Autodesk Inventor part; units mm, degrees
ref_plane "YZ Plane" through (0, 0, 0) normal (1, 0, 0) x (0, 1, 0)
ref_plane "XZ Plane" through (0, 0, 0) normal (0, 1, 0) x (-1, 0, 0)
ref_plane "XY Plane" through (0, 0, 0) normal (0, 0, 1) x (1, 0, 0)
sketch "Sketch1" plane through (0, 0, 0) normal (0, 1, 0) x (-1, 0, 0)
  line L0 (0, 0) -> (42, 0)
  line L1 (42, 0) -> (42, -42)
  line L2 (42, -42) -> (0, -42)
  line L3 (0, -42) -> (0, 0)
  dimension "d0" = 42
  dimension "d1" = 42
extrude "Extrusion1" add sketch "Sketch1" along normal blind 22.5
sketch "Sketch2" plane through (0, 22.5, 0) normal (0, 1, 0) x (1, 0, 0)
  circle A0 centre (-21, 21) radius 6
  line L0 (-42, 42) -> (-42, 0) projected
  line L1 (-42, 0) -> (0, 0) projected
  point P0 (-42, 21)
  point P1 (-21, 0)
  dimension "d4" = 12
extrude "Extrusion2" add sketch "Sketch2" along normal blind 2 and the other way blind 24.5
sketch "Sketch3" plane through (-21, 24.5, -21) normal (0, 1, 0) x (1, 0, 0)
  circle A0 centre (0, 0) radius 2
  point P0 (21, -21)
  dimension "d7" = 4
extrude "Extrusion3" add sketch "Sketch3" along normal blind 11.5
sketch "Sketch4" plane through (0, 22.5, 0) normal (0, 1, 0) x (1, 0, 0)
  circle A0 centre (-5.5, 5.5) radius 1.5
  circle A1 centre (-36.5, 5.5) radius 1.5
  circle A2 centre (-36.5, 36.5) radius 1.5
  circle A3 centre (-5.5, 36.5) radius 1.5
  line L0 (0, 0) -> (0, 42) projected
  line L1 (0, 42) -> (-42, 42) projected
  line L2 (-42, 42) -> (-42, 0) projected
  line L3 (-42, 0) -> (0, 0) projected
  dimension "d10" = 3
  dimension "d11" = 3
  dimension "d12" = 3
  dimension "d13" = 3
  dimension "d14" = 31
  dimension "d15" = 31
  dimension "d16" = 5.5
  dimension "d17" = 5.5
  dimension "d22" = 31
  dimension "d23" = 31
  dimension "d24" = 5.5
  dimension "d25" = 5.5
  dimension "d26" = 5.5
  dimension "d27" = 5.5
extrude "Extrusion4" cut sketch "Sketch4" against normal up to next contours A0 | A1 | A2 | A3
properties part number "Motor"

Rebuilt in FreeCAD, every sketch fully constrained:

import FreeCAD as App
import Part
import Sketcher

V = App.Vector

doc = App.newDocument("Part")
body = doc.addObject("PartDesign::Body", "Body")

sketch1 = doc.addObject("Sketcher::SketchObject", "Sketch")
body.addObject(sketch1)
sketch1.AttachmentSupport = (doc.XZ_Plane, [""])
sketch1.MapMode = "FlatFace"
sketch1.addGeometry([
    Part.LineSegment(V(-42, 0, 0), V(0, 0, 0)),
    Part.LineSegment(V(0, 0, 0), V(0, -42, 0)),
    Part.LineSegment(V(0, -42, 0), V(-42, -42, 0)),
    Part.LineSegment(V(-42, -42, 0), V(-42, 0, 0)),
], False)
sketch1.addConstraint([
    Sketcher.Constraint("Coincident", 0, 2, 1, 1),
    Sketcher.Constraint("Coincident", 1, 2, 2, 1),
    Sketcher.Constraint("Coincident", 2, 2, 3, 1),
    Sketcher.Constraint("Coincident", 3, 2, 0, 1),
    Sketcher.Constraint("Horizontal", 0),
    Sketcher.Constraint("Vertical", 1),
    Sketcher.Constraint("Horizontal", 2),
    Sketcher.Constraint("Vertical", 3),
    Sketcher.Constraint("Coincident", 0, 2, -1, 1),
    Sketcher.Constraint("Equal", 2, 1),
    Sketcher.Constraint("DistanceX", 0, 1, 0, 2, 42.0),
])
pad1 = doc.addObject("PartDesign::Pad", "Pad")
body.addObject(pad1)
pad1.Profile = sketch1
pad1.Length = 22.5
pad1.Reversed = True

sketch2 = doc.addObject("Sketcher::SketchObject", "Sketch001")
body.addObject(sketch2)
sketch2.AttachmentSupport = (doc.XZ_Plane, [""])
sketch2.MapMode = "FlatFace"
sketch2.AttachmentOffset = App.Placement(V(0, 0, -22.5), App.Rotation())
sketch2.addGeometry(Part.Circle(V(-21, -21, 0), V(0, 0, 1), 6), False)
sketch2.addConstraint([
    Sketcher.Constraint("Diameter", 0, 12.0),
    Sketcher.Constraint("DistanceX", 0, 3, -1, 1, 21.0),
    Sketcher.Constraint("DistanceY", 0, 3, -1, 1, 21.0),
])
pad2 = doc.addObject("PartDesign::Pad", "Pad001")
body.addObject(pad2)
pad2.Profile = sketch2
pad2.Type = "TwoLengths"
pad2.Length = 2
pad2.Length2 = 24.5
pad2.Reversed = True

sketch3 = doc.addObject("Sketcher::SketchObject", "Sketch002")
body.addObject(sketch3)
sketch3.AttachmentSupport = (doc.XZ_Plane, [""])
sketch3.MapMode = "FlatFace"
sketch3.AttachmentOffset = App.Placement(V(0, 0, -24.5), App.Rotation())
sketch3.addGeometry(Part.Circle(V(-21, -21, 0), V(0, 0, 1), 2), False)
sketch3.addConstraint([
    Sketcher.Constraint("Diameter", 0, 4.0),
    Sketcher.Constraint("DistanceX", 0, 3, -1, 1, 21.0),
    Sketcher.Constraint("DistanceY", 0, 3, -1, 1, 21.0),
])
pad3 = doc.addObject("PartDesign::Pad", "Pad002")
body.addObject(pad3)
pad3.Profile = sketch3
pad3.Length = 11.5
pad3.Reversed = True

sketch4 = doc.addObject("Sketcher::SketchObject", "Sketch003")
body.addObject(sketch4)
sketch4.AttachmentSupport = (doc.XZ_Plane, [""])
sketch4.MapMode = "FlatFace"
sketch4.AttachmentOffset = App.Placement(V(0, 0, -22.5), App.Rotation())
sketch4.addGeometry([
    Part.Circle(V(-5.5, -5.5, 0), V(0, 0, 1), 1.5),
    Part.Circle(V(-36.5, -5.5, 0), V(0, 0, 1), 1.5),
    Part.Circle(V(-36.5, -36.5, 0), V(0, 0, 1), 1.5),
    Part.Circle(V(-5.5, -36.5, 0), V(0, 0, 1), 1.5),
], False)
sketch4.addConstraint([
    Sketcher.Constraint("Equal", 0, 1),
    Sketcher.Constraint("Equal", 1, 2),
    Sketcher.Constraint("Equal", 2, 3),
    Sketcher.Constraint("Horizontal", 0, 3, 1, 3),
    Sketcher.Constraint("Horizontal", 2, 3, 3, 3),
    Sketcher.Constraint("Vertical", 1, 3, 2, 3),
    Sketcher.Constraint("Vertical", 0, 3, 3, 3),
    Sketcher.Constraint("Diameter", 0, 3.0),
    Sketcher.Constraint("DistanceX", 1, 3, 0, 3, 31.0),
    Sketcher.Constraint("DistanceY", 2, 3, 1, 3, 31.0),
    Sketcher.Constraint("DistanceX", 0, 3, -1, 1, 5.5),
    Sketcher.Constraint("DistanceY", 0, 3, -1, 1, 5.5),
])
pocket1 = doc.addObject("PartDesign::Pocket", "Pocket")
body.addObject(pocket1)
pocket1.Profile = sketch4
pocket1.Type = "UpToFirst"
pocket1.Reversed = True

doc.recompute()
